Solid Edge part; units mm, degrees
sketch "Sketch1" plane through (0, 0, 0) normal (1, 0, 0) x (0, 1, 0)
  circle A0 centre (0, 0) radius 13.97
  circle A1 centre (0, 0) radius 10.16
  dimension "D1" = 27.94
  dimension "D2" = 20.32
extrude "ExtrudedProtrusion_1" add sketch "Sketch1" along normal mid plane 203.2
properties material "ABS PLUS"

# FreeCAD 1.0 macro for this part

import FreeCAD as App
import Part
import Sketcher
Q = App.Units.Quantity

doc = App.newDocument("Part")
body = doc.addObject("PartDesign::Body", "Body")

# Sketch on YZ plane
sketch1 = body.newObject("Sketcher::SketchObject", "Sketch")
sketch1.AttachmentSupport = (doc.getObject("YZ_Plane"), [""])
sketch1.MapMode = "FlatFace"
sketch1.addGeometry(Part.Circle(App.Vector(0, 0, 0), App.Vector(0, 0, 1), 13.97), False)
sketch1.addGeometry(Part.Circle(App.Vector(0, 0, 0), App.Vector(0, 0, 1), 10.16), False)
sketch1.addConstraint(Sketcher.Constraint("Coincident", 0, 3, -1, 1))
sketch1.addConstraint(Sketcher.Constraint("Coincident", 1, 3, -1, 1))
sketch1.addConstraint(Sketcher.Constraint("Diameter", 0, Q("1.1 in")))
sketch1.addConstraint(Sketcher.Constraint("Diameter", 1, Q("0.8 in")))
pad1 = body.newObject("PartDesign::Pad", "Pad")
pad1.Profile = sketch1
pad1.Length = Q("8 in")
pad1.Midplane = True

doc.recompute()
